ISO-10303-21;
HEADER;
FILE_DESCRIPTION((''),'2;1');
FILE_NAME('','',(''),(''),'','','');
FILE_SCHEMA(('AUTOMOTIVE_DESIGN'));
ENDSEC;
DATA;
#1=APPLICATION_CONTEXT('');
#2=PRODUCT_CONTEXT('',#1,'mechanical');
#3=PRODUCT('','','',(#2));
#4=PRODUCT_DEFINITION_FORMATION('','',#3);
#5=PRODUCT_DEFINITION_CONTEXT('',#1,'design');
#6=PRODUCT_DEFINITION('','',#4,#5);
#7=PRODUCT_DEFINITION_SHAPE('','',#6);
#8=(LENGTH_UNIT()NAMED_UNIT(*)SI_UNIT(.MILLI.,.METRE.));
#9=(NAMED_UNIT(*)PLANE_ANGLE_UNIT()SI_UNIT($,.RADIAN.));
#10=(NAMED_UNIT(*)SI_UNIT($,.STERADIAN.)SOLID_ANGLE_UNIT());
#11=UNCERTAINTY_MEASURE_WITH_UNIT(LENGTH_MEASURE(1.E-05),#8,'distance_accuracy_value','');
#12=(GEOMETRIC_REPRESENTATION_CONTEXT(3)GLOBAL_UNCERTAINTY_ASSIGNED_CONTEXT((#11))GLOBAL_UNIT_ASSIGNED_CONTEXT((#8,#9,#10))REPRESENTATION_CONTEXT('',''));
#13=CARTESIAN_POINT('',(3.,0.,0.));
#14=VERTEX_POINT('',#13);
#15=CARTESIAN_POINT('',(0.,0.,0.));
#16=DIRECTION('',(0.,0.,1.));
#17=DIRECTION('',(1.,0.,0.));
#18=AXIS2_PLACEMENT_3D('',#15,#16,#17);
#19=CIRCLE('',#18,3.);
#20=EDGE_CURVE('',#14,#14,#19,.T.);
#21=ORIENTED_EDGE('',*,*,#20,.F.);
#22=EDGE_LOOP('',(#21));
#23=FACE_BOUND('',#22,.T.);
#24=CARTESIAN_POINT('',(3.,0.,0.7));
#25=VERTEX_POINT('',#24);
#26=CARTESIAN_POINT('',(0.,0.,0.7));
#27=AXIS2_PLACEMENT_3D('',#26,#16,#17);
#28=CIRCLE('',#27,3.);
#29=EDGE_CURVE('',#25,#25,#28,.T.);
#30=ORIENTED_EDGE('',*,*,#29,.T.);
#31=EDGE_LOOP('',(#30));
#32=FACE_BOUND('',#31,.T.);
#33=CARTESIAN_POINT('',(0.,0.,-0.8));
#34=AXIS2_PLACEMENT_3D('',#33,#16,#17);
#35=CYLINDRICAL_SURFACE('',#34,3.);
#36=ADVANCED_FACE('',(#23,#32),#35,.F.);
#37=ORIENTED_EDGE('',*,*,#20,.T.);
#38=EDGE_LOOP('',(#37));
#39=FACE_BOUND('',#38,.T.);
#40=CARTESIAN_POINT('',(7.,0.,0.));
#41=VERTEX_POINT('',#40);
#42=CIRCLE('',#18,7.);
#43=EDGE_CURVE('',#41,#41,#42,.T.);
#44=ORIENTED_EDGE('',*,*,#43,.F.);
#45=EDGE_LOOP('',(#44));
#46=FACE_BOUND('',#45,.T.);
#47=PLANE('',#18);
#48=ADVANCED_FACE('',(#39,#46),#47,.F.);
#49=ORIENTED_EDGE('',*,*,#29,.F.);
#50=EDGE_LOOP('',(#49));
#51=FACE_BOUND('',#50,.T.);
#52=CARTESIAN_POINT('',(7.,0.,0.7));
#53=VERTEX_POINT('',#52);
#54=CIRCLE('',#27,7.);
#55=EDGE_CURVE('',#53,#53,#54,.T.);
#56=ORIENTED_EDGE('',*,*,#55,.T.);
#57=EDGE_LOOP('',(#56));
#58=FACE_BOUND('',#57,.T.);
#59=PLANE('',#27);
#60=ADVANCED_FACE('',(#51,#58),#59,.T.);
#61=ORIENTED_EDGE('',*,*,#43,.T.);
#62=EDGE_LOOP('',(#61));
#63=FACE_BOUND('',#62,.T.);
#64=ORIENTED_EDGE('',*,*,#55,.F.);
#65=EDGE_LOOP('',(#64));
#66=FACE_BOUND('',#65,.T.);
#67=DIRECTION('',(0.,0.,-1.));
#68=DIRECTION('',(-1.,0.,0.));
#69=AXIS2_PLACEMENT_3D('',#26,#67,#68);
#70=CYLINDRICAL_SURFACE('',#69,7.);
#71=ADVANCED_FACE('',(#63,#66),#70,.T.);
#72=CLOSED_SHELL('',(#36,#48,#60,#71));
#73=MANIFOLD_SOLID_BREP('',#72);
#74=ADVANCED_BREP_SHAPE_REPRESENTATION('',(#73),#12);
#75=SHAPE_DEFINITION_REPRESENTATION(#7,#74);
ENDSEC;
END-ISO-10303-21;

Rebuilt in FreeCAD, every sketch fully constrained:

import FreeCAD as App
import Part
import Sketcher
Q = App.Units.Quantity

doc = App.newDocument("Part")
body = doc.addObject("PartDesign::Body", "Body")

sketch1 = body.newObject("Sketcher::SketchObject", "Sketch")
sketch1.AttachmentSupport = (doc.getObject("XY_Plane"), [""])
sketch1.MapMode = "FlatFace"
sketch1.addGeometry(Part.Circle(App.Vector(0, 0, 0), App.Vector(0, 0, 1), 7), False)
sketch1.addConstraint(Sketcher.Constraint("Coincident", 0, 3, -1, 1))
sketch1.addConstraint(Sketcher.Constraint("Diameter", 0, Q("14 mm")))
pad1 = body.newObject("PartDesign::Pad", "Pad")
pad1.Profile = sketch1
pad1.Length = 0.7

sketch2 = body.newObject("Sketcher::SketchObject", "Sketch001")
sketch2.AttachmentSupport = (doc.getObject("XY_Plane"), [""])
sketch2.MapMode = "FlatFace"
sketch2.AttachmentOffset = App.Placement(App.Vector(0, 0, 0.7), App.Rotation())
sketch2.addGeometry(Part.Circle(App.Vector(0, 0, 0), App.Vector(0, 0, 1), 3), False)
sketch2.addConstraint(Sketcher.Constraint("Coincident", 0, 3, -1, 1))
sketch2.addConstraint(Sketcher.Constraint("Diameter", 0, Q("6 mm")))
pocket1 = body.newObject("PartDesign::Pocket", "Pocket")
pocket1.Profile = sketch2
pocket1.Length = 1.5

doc.recompute()
